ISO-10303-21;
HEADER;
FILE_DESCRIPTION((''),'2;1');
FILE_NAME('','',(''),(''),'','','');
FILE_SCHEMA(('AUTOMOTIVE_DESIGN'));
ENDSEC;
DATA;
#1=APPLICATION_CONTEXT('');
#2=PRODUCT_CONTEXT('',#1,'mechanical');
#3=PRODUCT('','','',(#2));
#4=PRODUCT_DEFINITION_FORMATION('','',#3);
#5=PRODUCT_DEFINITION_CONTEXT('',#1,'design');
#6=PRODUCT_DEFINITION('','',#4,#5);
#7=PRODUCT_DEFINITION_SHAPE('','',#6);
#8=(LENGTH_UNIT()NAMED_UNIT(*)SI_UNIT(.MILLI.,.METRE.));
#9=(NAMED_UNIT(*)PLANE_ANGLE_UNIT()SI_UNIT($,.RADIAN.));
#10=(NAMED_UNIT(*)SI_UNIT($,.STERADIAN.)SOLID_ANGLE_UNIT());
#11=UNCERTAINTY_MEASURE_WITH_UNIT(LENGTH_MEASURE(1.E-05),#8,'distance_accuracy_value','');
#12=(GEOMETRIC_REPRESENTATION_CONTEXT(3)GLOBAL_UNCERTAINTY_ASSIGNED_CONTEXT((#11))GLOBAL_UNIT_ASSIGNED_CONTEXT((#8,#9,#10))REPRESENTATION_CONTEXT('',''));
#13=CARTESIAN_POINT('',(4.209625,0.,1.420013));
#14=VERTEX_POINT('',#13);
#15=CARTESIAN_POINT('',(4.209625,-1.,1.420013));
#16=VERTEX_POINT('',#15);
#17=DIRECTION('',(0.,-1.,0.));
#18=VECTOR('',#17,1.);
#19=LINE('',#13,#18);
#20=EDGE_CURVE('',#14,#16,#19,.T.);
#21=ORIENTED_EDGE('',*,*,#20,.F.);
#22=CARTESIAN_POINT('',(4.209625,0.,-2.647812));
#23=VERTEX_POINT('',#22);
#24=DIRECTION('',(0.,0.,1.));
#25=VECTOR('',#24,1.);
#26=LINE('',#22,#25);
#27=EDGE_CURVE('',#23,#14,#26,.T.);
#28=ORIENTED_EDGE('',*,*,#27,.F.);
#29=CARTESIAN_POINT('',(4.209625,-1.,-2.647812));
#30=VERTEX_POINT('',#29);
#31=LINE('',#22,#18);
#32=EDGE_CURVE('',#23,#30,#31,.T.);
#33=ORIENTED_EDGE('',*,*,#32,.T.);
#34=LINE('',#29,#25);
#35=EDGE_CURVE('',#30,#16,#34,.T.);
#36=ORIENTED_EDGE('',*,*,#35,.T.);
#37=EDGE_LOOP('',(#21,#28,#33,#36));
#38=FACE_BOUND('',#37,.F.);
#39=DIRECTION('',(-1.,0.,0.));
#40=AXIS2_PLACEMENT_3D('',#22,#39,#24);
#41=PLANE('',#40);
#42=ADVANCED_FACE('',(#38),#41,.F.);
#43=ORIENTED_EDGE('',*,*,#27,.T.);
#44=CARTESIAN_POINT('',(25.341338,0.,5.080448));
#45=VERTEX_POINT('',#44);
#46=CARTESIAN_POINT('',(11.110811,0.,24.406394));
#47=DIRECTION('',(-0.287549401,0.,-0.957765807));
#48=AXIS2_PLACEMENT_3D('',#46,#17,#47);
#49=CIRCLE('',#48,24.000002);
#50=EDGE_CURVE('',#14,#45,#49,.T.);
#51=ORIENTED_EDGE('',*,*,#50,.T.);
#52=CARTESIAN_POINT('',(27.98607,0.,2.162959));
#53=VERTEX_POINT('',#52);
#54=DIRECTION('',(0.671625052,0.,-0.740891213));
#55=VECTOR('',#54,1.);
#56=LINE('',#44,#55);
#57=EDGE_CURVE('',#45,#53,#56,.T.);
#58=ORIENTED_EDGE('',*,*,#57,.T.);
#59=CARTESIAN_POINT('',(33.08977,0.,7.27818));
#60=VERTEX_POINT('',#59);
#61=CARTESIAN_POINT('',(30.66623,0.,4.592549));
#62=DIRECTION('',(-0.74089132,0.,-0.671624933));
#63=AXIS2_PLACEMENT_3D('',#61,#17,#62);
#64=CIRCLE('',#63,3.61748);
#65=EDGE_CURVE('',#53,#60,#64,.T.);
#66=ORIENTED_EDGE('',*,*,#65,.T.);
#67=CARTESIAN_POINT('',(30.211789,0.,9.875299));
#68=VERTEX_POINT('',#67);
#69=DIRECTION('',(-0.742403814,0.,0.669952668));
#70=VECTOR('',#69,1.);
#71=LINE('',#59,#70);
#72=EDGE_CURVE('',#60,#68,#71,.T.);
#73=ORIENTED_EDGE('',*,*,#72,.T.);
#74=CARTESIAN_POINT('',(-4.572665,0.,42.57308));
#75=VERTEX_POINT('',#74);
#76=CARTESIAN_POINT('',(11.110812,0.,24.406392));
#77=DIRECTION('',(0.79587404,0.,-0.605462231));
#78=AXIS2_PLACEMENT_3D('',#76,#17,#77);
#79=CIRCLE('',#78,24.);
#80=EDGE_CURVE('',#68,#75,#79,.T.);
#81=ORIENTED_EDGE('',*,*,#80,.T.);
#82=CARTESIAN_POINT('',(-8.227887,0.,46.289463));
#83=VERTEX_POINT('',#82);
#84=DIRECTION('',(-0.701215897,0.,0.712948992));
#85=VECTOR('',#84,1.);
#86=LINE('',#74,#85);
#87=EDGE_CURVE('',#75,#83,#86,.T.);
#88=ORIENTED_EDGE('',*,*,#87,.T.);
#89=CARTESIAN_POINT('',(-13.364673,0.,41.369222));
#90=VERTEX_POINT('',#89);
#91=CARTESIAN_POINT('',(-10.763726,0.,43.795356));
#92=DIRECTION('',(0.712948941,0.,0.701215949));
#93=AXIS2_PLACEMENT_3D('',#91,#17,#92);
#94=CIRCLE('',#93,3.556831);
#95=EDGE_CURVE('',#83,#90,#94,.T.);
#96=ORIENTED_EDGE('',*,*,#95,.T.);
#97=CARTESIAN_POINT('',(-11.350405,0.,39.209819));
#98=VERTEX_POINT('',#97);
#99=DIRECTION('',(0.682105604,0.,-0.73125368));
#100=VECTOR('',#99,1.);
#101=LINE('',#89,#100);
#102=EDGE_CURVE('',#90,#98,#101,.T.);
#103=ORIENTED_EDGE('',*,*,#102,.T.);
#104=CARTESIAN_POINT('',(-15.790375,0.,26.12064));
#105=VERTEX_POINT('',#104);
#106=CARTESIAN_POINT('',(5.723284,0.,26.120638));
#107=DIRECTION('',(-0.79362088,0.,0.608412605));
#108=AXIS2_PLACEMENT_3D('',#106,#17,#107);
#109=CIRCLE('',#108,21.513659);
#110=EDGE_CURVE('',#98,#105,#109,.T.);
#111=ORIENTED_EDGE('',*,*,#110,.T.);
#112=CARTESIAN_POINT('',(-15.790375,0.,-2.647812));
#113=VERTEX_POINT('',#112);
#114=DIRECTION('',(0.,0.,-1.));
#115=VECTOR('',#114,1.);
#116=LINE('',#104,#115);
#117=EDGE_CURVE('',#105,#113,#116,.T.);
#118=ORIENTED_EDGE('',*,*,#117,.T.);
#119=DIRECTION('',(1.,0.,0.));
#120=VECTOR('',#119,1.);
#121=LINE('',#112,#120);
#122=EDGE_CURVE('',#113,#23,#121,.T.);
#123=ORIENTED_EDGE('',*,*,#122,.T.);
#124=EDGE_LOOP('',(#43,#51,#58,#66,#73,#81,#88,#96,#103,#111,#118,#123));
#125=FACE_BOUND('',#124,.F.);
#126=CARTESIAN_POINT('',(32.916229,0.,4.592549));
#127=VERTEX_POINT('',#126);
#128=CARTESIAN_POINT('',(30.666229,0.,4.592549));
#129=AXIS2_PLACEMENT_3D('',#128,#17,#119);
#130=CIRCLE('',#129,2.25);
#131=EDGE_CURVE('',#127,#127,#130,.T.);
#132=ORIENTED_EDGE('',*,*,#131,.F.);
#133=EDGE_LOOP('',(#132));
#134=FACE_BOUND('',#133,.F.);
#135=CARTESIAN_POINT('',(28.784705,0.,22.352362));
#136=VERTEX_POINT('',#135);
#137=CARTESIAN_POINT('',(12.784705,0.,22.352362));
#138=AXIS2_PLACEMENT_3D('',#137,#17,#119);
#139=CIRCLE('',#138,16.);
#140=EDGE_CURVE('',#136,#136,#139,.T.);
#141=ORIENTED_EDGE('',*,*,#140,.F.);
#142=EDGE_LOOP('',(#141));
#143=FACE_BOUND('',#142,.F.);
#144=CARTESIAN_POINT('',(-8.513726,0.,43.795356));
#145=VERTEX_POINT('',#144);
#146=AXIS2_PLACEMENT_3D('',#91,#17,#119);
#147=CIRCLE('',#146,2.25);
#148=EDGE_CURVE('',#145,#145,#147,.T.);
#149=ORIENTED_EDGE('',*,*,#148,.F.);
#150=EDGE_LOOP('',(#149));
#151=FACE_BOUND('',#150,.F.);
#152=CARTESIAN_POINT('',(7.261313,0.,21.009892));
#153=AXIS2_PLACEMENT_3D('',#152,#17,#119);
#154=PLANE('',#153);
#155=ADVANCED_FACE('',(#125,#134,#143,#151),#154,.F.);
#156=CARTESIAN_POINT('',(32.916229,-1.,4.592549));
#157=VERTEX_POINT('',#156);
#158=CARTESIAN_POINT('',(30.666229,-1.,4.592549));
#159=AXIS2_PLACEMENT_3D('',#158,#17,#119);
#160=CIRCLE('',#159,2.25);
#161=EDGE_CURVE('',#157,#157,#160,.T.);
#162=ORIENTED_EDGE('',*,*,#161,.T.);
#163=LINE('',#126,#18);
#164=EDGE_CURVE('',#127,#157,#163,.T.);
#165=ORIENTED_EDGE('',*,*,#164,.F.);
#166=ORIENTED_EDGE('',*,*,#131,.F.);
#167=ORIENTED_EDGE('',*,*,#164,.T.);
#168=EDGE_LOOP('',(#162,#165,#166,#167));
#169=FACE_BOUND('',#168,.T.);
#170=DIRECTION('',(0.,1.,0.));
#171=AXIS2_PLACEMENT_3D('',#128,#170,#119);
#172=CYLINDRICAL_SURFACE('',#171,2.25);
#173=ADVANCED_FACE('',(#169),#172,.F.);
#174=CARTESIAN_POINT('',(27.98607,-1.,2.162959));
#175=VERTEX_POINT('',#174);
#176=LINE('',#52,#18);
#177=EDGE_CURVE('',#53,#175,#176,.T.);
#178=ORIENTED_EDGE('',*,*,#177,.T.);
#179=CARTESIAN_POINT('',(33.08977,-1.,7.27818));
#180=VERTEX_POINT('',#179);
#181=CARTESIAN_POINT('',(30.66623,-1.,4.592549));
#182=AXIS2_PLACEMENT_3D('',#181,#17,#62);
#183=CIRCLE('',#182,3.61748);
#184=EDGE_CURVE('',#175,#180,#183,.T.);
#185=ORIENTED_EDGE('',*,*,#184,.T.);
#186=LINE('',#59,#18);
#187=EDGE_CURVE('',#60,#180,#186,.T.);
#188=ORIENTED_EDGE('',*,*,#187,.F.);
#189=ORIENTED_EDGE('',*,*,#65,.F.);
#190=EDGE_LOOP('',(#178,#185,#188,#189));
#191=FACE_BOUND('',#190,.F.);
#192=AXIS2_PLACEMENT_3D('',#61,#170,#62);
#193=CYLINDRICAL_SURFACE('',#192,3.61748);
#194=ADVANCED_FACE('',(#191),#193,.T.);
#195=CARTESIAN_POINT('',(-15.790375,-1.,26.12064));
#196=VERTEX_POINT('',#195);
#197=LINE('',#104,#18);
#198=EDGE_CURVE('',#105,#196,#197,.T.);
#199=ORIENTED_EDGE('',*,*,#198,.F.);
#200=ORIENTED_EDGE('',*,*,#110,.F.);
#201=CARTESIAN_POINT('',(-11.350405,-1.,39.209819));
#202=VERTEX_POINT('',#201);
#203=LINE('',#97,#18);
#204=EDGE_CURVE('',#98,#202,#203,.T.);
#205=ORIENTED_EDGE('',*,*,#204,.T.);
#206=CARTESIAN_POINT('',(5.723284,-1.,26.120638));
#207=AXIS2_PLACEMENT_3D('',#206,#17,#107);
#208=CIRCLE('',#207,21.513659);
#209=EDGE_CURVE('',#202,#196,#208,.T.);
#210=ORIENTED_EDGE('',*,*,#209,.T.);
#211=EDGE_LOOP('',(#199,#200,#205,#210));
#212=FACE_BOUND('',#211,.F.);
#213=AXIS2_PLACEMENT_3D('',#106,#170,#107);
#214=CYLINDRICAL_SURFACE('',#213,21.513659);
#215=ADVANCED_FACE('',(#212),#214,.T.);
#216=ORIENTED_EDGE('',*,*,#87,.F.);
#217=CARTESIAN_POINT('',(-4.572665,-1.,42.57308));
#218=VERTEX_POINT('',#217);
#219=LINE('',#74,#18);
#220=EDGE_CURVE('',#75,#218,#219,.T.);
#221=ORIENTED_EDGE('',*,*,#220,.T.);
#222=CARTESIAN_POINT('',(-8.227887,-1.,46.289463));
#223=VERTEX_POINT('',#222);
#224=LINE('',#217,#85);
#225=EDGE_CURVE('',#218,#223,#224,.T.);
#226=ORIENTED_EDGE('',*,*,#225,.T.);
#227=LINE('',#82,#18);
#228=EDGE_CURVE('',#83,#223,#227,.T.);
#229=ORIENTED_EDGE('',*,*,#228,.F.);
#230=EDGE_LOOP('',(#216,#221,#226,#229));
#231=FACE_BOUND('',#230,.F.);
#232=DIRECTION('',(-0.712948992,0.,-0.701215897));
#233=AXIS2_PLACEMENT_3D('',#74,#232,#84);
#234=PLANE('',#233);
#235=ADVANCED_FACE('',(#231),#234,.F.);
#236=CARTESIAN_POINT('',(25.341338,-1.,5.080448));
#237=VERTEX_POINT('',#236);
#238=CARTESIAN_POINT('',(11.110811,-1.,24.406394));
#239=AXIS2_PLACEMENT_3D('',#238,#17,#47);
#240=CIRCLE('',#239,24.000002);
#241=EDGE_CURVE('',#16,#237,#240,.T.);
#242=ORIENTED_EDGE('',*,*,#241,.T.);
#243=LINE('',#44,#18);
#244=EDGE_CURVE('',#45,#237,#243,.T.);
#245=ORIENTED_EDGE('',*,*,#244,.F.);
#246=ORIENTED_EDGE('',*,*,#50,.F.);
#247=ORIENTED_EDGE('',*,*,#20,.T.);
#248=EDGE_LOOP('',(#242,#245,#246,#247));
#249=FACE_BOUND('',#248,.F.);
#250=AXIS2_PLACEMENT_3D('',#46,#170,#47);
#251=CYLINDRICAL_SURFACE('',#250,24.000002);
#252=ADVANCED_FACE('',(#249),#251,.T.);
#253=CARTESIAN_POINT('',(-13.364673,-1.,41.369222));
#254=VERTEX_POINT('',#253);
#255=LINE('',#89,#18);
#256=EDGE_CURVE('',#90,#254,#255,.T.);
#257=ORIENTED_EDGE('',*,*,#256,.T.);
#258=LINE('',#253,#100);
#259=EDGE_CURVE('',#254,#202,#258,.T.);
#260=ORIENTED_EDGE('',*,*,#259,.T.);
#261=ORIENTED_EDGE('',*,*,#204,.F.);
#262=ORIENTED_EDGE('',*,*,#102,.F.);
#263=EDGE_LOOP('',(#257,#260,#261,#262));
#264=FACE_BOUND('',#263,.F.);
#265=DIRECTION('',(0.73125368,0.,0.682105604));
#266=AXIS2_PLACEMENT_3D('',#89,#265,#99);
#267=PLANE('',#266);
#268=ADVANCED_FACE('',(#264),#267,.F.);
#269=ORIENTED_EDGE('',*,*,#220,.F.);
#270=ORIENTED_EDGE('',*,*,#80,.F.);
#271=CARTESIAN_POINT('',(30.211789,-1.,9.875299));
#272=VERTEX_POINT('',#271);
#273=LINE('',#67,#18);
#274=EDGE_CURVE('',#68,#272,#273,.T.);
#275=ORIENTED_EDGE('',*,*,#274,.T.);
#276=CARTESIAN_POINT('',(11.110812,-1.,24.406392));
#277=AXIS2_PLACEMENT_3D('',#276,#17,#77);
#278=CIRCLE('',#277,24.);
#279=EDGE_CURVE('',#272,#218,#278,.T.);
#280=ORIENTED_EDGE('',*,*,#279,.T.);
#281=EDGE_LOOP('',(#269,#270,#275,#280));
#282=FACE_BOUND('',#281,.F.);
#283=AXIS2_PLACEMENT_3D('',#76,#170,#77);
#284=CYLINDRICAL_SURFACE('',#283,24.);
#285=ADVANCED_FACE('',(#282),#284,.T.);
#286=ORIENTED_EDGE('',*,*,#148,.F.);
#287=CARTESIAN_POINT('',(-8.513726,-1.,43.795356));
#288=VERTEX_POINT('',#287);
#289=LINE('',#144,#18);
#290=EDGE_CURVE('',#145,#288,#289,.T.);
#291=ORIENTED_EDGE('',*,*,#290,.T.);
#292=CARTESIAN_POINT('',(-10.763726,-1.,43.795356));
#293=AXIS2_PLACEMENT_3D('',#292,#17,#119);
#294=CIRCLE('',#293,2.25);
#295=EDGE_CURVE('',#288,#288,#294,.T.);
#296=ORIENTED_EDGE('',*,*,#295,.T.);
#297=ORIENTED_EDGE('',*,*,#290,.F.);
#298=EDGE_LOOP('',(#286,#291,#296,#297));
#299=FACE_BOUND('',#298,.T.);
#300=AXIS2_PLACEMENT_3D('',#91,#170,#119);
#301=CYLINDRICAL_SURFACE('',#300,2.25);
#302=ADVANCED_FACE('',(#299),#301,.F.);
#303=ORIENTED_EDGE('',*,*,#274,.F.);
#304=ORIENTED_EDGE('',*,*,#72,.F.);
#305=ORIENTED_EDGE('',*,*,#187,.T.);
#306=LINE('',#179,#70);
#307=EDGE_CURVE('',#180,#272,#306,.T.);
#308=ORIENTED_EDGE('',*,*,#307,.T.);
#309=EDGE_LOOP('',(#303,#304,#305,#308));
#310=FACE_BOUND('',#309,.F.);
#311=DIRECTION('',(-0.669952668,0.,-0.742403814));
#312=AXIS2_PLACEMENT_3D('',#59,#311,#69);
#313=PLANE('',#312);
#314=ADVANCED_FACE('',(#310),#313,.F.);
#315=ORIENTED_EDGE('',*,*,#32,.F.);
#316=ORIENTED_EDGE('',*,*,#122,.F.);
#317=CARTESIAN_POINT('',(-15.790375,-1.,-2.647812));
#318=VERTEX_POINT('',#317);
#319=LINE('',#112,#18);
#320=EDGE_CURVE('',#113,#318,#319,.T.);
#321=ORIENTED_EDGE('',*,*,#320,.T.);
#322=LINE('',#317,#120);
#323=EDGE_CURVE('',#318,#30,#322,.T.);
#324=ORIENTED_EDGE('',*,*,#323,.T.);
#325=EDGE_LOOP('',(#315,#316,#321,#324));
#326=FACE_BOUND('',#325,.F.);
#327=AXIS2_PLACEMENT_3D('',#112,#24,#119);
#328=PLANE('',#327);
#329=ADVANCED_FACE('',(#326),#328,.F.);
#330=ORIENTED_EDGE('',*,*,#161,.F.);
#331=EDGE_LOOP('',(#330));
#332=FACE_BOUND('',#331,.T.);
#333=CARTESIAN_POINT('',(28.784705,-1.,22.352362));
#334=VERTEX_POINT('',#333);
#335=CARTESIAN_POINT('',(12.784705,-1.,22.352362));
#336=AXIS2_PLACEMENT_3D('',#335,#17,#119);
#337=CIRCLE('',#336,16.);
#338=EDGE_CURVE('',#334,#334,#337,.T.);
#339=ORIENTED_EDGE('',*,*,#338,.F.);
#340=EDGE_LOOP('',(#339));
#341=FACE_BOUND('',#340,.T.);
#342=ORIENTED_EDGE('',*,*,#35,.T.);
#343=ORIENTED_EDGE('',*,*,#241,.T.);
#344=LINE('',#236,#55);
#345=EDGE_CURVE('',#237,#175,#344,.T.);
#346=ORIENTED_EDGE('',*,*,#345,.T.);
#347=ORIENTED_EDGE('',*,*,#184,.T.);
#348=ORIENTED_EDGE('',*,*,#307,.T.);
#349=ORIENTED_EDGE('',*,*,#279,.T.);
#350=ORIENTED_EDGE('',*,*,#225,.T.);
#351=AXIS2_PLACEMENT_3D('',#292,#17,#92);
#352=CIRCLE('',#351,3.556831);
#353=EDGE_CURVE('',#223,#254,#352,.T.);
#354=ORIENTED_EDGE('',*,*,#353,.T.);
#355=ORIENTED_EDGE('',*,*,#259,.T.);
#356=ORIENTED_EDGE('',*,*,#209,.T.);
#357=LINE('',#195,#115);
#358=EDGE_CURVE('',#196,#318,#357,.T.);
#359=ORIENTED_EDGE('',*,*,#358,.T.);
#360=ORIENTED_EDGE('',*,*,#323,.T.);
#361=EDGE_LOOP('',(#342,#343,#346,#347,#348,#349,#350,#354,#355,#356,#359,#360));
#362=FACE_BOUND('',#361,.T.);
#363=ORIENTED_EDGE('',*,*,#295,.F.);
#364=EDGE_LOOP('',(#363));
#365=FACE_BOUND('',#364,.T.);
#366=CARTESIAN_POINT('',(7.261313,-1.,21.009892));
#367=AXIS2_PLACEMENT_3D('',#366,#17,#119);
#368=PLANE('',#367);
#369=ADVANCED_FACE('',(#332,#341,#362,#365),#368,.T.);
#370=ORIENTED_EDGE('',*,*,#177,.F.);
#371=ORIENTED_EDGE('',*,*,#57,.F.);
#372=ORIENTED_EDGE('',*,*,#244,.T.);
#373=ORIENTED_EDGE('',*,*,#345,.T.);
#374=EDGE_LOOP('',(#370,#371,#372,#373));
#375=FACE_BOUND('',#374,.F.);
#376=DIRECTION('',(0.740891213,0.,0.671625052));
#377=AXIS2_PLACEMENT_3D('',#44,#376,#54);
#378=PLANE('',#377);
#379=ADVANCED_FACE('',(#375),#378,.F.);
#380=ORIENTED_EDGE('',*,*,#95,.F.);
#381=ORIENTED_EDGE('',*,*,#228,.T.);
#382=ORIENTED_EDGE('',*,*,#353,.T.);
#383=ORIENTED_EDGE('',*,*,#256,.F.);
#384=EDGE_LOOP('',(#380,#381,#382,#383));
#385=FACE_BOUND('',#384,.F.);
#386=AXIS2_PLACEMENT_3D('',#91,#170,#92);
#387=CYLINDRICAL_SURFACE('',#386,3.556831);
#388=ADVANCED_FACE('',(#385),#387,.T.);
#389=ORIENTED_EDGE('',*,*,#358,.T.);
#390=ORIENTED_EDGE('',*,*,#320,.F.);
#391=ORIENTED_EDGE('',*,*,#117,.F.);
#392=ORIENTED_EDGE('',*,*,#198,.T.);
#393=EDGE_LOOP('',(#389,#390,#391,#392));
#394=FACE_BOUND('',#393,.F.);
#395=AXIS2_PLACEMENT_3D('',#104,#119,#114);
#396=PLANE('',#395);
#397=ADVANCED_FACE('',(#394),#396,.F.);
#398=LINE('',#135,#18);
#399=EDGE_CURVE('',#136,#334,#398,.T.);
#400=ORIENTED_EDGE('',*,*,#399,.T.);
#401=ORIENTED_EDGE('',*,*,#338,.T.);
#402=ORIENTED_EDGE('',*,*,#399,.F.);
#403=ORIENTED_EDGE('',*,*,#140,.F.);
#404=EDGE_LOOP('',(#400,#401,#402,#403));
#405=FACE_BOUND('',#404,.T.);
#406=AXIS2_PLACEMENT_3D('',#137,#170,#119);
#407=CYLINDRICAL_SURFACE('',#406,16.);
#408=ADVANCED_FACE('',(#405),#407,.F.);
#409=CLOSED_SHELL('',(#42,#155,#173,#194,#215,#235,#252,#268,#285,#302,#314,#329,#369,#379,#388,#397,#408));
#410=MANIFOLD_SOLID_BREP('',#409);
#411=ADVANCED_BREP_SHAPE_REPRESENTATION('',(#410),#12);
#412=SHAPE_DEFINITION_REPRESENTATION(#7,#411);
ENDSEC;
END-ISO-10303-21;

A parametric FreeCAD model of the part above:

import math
import FreeCAD as App
import Part
import Sketcher
from FreeCAD import Vector
Q = App.Units.Quantity

doc = App.newDocument("Part")
params = doc.addObject("Spreadsheet::Sheet", "Params")
for row, (alias, value) in enumerate([
    ("sketch1_diameter", "32 mm"),
    ("sketch1_radius", "24.000002 mm"),
    ("sketch1_diameter2", "4.5 mm"),
    ("sketch1_width", "20 mm"),
    ("pad1_length", "1 mm"),
], start=1):
    params.set(f"A{row}", alias)
    params.set(f"B{row}", "=" + value)
    params.setAlias(f"B{row}", alias)

body = doc.addObject("PartDesign::Body", "Body")

# Sketch on XZ plane
sketch1 = body.newObject("Sketcher::SketchObject", "Sketch")
sketch1.AttachmentSupport = (doc.getObject("XZ_Plane"), [""])
sketch1.MapMode = "FlatFace"
sketch1.addGeometry(Part.LineSegment(Vector(4.209625, -2.647812, 0), Vector(4.209625, 1.420013, 0)), False)
sketch1.addGeometry(Part.ArcOfCircle(Part.Circle(Vector(11.110811, 24.406394, 0), Vector(0, 0, 1), 24.000002), math.radians(-106.711299), math.radians(-53.634183)), False)
sketch1.addGeometry(Part.LineSegment(Vector(25.341338, 5.080448, 0), Vector(27.98607, 2.162959, 0)), False)
sketch1.addGeometry(Part.ArcOfCircle(Part.Circle(Vector(30.66623, 4.592549, 0), Vector(0, 0, 1), 3.61748), math.radians(-137.807398), math.radians(47.93659)), False)
sketch1.addGeometry(Part.LineSegment(Vector(33.08977, 7.27818, 0), Vector(30.211789, 9.875299, 0)), False)
sketch1.addGeometry(Part.ArcOfCircle(Part.Circle(Vector(11.110812, 24.406392, 0), Vector(0, 0, 1), 24), math.radians(-37.262111), math.radians(130.804361)), False)
sketch1.addGeometry(Part.LineSegment(Vector(-4.572665, 42.57308, 0), Vector(-8.227887, 46.289463, 0)), False)
sketch1.addGeometry(Part.ArcOfCircle(Part.Circle(Vector(-10.763726, 43.795356, 0), Vector(0, 0, 1), 3.556831), math.radians(44.524641), math.radians(223.008387)), False)
sketch1.addGeometry(Part.LineSegment(Vector(-13.364673, 41.369222, 0), Vector(-11.350405, 39.209819, 0)), False)
sketch1.addGeometry(Part.ArcOfCircle(Part.Circle(Vector(5.723284, 26.120638, 0), Vector(0, 0, 1), 21.513659), math.radians(142.525188), math.radians(179.999994)), False)
sketch1.addGeometry(Part.LineSegment(Vector(-15.790375, 26.12064, 0), Vector(-15.790375, -2.647812, 0)), False)
sketch1.addGeometry(Part.LineSegment(Vector(-15.790375, -2.647812, 0), Vector(4.209625, -2.647812, 0)), False)
sketch1.addGeometry(Part.Circle(Vector(30.666229, 4.592549, 0), Vector(0, 0, 1), 2.25), False)
sketch1.addGeometry(Part.Circle(Vector(12.784705, 22.352362, 0), Vector(0, 0, 1), 16), False)
sketch1.addGeometry(Part.Circle(Vector(-10.763726, 43.795356, 0), Vector(0, 0, 1), 2.25), False)
sketch1.addConstraint(Sketcher.Constraint("Coincident", 0, 2, 1, 1))
sketch1.addConstraint(Sketcher.Constraint("Coincident", 1, 2, 2, 1))
sketch1.addConstraint(Sketcher.Constraint("Tangent", 2, 2, 3, 1))
sketch1.addConstraint(Sketcher.Constraint("Tangent", 3, 2, 4, 1))
sketch1.addConstraint(Sketcher.Constraint("Coincident", 4, 2, 5, 1))
sketch1.addConstraint(Sketcher.Constraint("Coincident", 5, 2, 6, 1))
sketch1.addConstraint(Sketcher.Constraint("Tangent", 6, 2, 7, 1))
sketch1.addConstraint(Sketcher.Constraint("Tangent", 7, 2, 8, 1))
sketch1.addConstraint(Sketcher.Constraint("Coincident", 8, 2, 9, 1))
sketch1.addConstraint(Sketcher.Constraint("Tangent", 9, 2, 10, 1))
sketch1.addConstraint(Sketcher.Constraint("Coincident", 10, 2, 11, 1))
sketch1.addConstraint(Sketcher.Constraint("Coincident", 11, 2, 0, 1))
sketch1.addConstraint(Sketcher.Constraint("Vertical", 0))
sketch1.addConstraint(Sketcher.Constraint("Vertical", 10))
sketch1.addConstraint(Sketcher.Constraint("Horizontal", 11))
sketch1.addConstraint(Sketcher.Constraint("Coincident", 5, 3, 1, 3))
sketch1.addConstraint(Sketcher.Constraint("Coincident", 12, 3, 3, 3))
sketch1.addConstraint(Sketcher.Constraint("Coincident", 14, 3, 7, 3))
sketch1.addConstraint(Sketcher.Constraint("Equal", 1, 5))
sketch1.addConstraint(Sketcher.Constraint("Equal", 12, 14))
sketch1.addConstraint(Sketcher.Constraint("Diameter", 13, Q("32 mm")))
sketch1.addConstraint(Sketcher.Constraint("Radius", 1, Q("24.000002 mm")))
sketch1.addConstraint(Sketcher.Constraint("Diameter", 12, Q("4.5 mm")))
sketch1.addConstraint(Sketcher.Constraint("DistanceX", 11, 1, 11, 2, Q("20 mm")))
sketch1.addConstraint(Sketcher.Constraint("Radius", 3, Q("3.61748 mm")))
sketch1.addConstraint(Sketcher.Constraint("Radius", 7, Q("3.556831 mm")))
sketch1.addConstraint(Sketcher.Constraint("Radius", 9, Q("21.513659 mm")))
sketch1.addConstraint(Sketcher.Constraint("DistanceY", -1, 1, 4, 2, Q("9.875299 mm")))
sketch1.addConstraint(Sketcher.Constraint("DistanceY", 12, 3, 1, 2, Q("0.487899 mm")))
sketch1.addConstraint(Sketcher.Constraint("DistanceX", 2, 2, 3, 2, Q("5.1037 mm")))
sketch1.addConstraint(Sketcher.Constraint("DistanceX", 6, 2, 1, 3, Q("19.338698 mm")))
sketch1.addConstraint(Sketcher.Constraint("DistanceX", 9, 2, 7, 2, Q("2.425702 mm")))
sketch1.addConstraint(Sketcher.Constraint("Distance", 2, Q("3.93781 mm")))
sketch1.addConstraint(Sketcher.Constraint("Distance", 4, Q("3.876571 mm")))
sketch1.addConstraint(Sketcher.Constraint("Distance", 6, Q("5.212691 mm")))
sketch1.addConstraint(Sketcher.Constraint("DistanceY", 0, 1, 0, 2, Q("4.067825 mm")))
sketch1.addConstraint(Sketcher.Constraint("DistanceY", 10, 2, 10, 1, Q("28.768452 mm")))
sketch1.addConstraint(Sketcher.Constraint("DistanceX", -1, 1, 1, 3, Q("11.110811 mm")))
sketch1.addConstraint(Sketcher.Constraint("DistanceY", -1, 1, 13, 3, Q("22.352362 mm")))
sketch1.addConstraint(Sketcher.Constraint("DistanceY", -1, 1, 5, 2, Q("42.57308 mm")))
sketch1.addConstraint(Sketcher.Constraint("DistanceY", -1, 1, 7, 2, Q("41.369222 mm")))
sketch1.addConstraint(Sketcher.Constraint("DistanceX", 9, 3, 13, 3, Q("7.061421 mm")))
sketch1.setExpression("Constraints[20]", "Params.sketch1_diameter")
sketch1.setExpression("Constraints[21]", "Params.sketch1_radius")
sketch1.setExpression("Constraints[22]", "Params.sketch1_diameter2")
sketch1.setExpression("Constraints[23]", "Params.sketch1_width")
pad1 = body.newObject("PartDesign::Pad", "Pad")
pad1.Profile = sketch1
pad1.setExpression("Length", "Params.pad1_length")

doc.recompute()
